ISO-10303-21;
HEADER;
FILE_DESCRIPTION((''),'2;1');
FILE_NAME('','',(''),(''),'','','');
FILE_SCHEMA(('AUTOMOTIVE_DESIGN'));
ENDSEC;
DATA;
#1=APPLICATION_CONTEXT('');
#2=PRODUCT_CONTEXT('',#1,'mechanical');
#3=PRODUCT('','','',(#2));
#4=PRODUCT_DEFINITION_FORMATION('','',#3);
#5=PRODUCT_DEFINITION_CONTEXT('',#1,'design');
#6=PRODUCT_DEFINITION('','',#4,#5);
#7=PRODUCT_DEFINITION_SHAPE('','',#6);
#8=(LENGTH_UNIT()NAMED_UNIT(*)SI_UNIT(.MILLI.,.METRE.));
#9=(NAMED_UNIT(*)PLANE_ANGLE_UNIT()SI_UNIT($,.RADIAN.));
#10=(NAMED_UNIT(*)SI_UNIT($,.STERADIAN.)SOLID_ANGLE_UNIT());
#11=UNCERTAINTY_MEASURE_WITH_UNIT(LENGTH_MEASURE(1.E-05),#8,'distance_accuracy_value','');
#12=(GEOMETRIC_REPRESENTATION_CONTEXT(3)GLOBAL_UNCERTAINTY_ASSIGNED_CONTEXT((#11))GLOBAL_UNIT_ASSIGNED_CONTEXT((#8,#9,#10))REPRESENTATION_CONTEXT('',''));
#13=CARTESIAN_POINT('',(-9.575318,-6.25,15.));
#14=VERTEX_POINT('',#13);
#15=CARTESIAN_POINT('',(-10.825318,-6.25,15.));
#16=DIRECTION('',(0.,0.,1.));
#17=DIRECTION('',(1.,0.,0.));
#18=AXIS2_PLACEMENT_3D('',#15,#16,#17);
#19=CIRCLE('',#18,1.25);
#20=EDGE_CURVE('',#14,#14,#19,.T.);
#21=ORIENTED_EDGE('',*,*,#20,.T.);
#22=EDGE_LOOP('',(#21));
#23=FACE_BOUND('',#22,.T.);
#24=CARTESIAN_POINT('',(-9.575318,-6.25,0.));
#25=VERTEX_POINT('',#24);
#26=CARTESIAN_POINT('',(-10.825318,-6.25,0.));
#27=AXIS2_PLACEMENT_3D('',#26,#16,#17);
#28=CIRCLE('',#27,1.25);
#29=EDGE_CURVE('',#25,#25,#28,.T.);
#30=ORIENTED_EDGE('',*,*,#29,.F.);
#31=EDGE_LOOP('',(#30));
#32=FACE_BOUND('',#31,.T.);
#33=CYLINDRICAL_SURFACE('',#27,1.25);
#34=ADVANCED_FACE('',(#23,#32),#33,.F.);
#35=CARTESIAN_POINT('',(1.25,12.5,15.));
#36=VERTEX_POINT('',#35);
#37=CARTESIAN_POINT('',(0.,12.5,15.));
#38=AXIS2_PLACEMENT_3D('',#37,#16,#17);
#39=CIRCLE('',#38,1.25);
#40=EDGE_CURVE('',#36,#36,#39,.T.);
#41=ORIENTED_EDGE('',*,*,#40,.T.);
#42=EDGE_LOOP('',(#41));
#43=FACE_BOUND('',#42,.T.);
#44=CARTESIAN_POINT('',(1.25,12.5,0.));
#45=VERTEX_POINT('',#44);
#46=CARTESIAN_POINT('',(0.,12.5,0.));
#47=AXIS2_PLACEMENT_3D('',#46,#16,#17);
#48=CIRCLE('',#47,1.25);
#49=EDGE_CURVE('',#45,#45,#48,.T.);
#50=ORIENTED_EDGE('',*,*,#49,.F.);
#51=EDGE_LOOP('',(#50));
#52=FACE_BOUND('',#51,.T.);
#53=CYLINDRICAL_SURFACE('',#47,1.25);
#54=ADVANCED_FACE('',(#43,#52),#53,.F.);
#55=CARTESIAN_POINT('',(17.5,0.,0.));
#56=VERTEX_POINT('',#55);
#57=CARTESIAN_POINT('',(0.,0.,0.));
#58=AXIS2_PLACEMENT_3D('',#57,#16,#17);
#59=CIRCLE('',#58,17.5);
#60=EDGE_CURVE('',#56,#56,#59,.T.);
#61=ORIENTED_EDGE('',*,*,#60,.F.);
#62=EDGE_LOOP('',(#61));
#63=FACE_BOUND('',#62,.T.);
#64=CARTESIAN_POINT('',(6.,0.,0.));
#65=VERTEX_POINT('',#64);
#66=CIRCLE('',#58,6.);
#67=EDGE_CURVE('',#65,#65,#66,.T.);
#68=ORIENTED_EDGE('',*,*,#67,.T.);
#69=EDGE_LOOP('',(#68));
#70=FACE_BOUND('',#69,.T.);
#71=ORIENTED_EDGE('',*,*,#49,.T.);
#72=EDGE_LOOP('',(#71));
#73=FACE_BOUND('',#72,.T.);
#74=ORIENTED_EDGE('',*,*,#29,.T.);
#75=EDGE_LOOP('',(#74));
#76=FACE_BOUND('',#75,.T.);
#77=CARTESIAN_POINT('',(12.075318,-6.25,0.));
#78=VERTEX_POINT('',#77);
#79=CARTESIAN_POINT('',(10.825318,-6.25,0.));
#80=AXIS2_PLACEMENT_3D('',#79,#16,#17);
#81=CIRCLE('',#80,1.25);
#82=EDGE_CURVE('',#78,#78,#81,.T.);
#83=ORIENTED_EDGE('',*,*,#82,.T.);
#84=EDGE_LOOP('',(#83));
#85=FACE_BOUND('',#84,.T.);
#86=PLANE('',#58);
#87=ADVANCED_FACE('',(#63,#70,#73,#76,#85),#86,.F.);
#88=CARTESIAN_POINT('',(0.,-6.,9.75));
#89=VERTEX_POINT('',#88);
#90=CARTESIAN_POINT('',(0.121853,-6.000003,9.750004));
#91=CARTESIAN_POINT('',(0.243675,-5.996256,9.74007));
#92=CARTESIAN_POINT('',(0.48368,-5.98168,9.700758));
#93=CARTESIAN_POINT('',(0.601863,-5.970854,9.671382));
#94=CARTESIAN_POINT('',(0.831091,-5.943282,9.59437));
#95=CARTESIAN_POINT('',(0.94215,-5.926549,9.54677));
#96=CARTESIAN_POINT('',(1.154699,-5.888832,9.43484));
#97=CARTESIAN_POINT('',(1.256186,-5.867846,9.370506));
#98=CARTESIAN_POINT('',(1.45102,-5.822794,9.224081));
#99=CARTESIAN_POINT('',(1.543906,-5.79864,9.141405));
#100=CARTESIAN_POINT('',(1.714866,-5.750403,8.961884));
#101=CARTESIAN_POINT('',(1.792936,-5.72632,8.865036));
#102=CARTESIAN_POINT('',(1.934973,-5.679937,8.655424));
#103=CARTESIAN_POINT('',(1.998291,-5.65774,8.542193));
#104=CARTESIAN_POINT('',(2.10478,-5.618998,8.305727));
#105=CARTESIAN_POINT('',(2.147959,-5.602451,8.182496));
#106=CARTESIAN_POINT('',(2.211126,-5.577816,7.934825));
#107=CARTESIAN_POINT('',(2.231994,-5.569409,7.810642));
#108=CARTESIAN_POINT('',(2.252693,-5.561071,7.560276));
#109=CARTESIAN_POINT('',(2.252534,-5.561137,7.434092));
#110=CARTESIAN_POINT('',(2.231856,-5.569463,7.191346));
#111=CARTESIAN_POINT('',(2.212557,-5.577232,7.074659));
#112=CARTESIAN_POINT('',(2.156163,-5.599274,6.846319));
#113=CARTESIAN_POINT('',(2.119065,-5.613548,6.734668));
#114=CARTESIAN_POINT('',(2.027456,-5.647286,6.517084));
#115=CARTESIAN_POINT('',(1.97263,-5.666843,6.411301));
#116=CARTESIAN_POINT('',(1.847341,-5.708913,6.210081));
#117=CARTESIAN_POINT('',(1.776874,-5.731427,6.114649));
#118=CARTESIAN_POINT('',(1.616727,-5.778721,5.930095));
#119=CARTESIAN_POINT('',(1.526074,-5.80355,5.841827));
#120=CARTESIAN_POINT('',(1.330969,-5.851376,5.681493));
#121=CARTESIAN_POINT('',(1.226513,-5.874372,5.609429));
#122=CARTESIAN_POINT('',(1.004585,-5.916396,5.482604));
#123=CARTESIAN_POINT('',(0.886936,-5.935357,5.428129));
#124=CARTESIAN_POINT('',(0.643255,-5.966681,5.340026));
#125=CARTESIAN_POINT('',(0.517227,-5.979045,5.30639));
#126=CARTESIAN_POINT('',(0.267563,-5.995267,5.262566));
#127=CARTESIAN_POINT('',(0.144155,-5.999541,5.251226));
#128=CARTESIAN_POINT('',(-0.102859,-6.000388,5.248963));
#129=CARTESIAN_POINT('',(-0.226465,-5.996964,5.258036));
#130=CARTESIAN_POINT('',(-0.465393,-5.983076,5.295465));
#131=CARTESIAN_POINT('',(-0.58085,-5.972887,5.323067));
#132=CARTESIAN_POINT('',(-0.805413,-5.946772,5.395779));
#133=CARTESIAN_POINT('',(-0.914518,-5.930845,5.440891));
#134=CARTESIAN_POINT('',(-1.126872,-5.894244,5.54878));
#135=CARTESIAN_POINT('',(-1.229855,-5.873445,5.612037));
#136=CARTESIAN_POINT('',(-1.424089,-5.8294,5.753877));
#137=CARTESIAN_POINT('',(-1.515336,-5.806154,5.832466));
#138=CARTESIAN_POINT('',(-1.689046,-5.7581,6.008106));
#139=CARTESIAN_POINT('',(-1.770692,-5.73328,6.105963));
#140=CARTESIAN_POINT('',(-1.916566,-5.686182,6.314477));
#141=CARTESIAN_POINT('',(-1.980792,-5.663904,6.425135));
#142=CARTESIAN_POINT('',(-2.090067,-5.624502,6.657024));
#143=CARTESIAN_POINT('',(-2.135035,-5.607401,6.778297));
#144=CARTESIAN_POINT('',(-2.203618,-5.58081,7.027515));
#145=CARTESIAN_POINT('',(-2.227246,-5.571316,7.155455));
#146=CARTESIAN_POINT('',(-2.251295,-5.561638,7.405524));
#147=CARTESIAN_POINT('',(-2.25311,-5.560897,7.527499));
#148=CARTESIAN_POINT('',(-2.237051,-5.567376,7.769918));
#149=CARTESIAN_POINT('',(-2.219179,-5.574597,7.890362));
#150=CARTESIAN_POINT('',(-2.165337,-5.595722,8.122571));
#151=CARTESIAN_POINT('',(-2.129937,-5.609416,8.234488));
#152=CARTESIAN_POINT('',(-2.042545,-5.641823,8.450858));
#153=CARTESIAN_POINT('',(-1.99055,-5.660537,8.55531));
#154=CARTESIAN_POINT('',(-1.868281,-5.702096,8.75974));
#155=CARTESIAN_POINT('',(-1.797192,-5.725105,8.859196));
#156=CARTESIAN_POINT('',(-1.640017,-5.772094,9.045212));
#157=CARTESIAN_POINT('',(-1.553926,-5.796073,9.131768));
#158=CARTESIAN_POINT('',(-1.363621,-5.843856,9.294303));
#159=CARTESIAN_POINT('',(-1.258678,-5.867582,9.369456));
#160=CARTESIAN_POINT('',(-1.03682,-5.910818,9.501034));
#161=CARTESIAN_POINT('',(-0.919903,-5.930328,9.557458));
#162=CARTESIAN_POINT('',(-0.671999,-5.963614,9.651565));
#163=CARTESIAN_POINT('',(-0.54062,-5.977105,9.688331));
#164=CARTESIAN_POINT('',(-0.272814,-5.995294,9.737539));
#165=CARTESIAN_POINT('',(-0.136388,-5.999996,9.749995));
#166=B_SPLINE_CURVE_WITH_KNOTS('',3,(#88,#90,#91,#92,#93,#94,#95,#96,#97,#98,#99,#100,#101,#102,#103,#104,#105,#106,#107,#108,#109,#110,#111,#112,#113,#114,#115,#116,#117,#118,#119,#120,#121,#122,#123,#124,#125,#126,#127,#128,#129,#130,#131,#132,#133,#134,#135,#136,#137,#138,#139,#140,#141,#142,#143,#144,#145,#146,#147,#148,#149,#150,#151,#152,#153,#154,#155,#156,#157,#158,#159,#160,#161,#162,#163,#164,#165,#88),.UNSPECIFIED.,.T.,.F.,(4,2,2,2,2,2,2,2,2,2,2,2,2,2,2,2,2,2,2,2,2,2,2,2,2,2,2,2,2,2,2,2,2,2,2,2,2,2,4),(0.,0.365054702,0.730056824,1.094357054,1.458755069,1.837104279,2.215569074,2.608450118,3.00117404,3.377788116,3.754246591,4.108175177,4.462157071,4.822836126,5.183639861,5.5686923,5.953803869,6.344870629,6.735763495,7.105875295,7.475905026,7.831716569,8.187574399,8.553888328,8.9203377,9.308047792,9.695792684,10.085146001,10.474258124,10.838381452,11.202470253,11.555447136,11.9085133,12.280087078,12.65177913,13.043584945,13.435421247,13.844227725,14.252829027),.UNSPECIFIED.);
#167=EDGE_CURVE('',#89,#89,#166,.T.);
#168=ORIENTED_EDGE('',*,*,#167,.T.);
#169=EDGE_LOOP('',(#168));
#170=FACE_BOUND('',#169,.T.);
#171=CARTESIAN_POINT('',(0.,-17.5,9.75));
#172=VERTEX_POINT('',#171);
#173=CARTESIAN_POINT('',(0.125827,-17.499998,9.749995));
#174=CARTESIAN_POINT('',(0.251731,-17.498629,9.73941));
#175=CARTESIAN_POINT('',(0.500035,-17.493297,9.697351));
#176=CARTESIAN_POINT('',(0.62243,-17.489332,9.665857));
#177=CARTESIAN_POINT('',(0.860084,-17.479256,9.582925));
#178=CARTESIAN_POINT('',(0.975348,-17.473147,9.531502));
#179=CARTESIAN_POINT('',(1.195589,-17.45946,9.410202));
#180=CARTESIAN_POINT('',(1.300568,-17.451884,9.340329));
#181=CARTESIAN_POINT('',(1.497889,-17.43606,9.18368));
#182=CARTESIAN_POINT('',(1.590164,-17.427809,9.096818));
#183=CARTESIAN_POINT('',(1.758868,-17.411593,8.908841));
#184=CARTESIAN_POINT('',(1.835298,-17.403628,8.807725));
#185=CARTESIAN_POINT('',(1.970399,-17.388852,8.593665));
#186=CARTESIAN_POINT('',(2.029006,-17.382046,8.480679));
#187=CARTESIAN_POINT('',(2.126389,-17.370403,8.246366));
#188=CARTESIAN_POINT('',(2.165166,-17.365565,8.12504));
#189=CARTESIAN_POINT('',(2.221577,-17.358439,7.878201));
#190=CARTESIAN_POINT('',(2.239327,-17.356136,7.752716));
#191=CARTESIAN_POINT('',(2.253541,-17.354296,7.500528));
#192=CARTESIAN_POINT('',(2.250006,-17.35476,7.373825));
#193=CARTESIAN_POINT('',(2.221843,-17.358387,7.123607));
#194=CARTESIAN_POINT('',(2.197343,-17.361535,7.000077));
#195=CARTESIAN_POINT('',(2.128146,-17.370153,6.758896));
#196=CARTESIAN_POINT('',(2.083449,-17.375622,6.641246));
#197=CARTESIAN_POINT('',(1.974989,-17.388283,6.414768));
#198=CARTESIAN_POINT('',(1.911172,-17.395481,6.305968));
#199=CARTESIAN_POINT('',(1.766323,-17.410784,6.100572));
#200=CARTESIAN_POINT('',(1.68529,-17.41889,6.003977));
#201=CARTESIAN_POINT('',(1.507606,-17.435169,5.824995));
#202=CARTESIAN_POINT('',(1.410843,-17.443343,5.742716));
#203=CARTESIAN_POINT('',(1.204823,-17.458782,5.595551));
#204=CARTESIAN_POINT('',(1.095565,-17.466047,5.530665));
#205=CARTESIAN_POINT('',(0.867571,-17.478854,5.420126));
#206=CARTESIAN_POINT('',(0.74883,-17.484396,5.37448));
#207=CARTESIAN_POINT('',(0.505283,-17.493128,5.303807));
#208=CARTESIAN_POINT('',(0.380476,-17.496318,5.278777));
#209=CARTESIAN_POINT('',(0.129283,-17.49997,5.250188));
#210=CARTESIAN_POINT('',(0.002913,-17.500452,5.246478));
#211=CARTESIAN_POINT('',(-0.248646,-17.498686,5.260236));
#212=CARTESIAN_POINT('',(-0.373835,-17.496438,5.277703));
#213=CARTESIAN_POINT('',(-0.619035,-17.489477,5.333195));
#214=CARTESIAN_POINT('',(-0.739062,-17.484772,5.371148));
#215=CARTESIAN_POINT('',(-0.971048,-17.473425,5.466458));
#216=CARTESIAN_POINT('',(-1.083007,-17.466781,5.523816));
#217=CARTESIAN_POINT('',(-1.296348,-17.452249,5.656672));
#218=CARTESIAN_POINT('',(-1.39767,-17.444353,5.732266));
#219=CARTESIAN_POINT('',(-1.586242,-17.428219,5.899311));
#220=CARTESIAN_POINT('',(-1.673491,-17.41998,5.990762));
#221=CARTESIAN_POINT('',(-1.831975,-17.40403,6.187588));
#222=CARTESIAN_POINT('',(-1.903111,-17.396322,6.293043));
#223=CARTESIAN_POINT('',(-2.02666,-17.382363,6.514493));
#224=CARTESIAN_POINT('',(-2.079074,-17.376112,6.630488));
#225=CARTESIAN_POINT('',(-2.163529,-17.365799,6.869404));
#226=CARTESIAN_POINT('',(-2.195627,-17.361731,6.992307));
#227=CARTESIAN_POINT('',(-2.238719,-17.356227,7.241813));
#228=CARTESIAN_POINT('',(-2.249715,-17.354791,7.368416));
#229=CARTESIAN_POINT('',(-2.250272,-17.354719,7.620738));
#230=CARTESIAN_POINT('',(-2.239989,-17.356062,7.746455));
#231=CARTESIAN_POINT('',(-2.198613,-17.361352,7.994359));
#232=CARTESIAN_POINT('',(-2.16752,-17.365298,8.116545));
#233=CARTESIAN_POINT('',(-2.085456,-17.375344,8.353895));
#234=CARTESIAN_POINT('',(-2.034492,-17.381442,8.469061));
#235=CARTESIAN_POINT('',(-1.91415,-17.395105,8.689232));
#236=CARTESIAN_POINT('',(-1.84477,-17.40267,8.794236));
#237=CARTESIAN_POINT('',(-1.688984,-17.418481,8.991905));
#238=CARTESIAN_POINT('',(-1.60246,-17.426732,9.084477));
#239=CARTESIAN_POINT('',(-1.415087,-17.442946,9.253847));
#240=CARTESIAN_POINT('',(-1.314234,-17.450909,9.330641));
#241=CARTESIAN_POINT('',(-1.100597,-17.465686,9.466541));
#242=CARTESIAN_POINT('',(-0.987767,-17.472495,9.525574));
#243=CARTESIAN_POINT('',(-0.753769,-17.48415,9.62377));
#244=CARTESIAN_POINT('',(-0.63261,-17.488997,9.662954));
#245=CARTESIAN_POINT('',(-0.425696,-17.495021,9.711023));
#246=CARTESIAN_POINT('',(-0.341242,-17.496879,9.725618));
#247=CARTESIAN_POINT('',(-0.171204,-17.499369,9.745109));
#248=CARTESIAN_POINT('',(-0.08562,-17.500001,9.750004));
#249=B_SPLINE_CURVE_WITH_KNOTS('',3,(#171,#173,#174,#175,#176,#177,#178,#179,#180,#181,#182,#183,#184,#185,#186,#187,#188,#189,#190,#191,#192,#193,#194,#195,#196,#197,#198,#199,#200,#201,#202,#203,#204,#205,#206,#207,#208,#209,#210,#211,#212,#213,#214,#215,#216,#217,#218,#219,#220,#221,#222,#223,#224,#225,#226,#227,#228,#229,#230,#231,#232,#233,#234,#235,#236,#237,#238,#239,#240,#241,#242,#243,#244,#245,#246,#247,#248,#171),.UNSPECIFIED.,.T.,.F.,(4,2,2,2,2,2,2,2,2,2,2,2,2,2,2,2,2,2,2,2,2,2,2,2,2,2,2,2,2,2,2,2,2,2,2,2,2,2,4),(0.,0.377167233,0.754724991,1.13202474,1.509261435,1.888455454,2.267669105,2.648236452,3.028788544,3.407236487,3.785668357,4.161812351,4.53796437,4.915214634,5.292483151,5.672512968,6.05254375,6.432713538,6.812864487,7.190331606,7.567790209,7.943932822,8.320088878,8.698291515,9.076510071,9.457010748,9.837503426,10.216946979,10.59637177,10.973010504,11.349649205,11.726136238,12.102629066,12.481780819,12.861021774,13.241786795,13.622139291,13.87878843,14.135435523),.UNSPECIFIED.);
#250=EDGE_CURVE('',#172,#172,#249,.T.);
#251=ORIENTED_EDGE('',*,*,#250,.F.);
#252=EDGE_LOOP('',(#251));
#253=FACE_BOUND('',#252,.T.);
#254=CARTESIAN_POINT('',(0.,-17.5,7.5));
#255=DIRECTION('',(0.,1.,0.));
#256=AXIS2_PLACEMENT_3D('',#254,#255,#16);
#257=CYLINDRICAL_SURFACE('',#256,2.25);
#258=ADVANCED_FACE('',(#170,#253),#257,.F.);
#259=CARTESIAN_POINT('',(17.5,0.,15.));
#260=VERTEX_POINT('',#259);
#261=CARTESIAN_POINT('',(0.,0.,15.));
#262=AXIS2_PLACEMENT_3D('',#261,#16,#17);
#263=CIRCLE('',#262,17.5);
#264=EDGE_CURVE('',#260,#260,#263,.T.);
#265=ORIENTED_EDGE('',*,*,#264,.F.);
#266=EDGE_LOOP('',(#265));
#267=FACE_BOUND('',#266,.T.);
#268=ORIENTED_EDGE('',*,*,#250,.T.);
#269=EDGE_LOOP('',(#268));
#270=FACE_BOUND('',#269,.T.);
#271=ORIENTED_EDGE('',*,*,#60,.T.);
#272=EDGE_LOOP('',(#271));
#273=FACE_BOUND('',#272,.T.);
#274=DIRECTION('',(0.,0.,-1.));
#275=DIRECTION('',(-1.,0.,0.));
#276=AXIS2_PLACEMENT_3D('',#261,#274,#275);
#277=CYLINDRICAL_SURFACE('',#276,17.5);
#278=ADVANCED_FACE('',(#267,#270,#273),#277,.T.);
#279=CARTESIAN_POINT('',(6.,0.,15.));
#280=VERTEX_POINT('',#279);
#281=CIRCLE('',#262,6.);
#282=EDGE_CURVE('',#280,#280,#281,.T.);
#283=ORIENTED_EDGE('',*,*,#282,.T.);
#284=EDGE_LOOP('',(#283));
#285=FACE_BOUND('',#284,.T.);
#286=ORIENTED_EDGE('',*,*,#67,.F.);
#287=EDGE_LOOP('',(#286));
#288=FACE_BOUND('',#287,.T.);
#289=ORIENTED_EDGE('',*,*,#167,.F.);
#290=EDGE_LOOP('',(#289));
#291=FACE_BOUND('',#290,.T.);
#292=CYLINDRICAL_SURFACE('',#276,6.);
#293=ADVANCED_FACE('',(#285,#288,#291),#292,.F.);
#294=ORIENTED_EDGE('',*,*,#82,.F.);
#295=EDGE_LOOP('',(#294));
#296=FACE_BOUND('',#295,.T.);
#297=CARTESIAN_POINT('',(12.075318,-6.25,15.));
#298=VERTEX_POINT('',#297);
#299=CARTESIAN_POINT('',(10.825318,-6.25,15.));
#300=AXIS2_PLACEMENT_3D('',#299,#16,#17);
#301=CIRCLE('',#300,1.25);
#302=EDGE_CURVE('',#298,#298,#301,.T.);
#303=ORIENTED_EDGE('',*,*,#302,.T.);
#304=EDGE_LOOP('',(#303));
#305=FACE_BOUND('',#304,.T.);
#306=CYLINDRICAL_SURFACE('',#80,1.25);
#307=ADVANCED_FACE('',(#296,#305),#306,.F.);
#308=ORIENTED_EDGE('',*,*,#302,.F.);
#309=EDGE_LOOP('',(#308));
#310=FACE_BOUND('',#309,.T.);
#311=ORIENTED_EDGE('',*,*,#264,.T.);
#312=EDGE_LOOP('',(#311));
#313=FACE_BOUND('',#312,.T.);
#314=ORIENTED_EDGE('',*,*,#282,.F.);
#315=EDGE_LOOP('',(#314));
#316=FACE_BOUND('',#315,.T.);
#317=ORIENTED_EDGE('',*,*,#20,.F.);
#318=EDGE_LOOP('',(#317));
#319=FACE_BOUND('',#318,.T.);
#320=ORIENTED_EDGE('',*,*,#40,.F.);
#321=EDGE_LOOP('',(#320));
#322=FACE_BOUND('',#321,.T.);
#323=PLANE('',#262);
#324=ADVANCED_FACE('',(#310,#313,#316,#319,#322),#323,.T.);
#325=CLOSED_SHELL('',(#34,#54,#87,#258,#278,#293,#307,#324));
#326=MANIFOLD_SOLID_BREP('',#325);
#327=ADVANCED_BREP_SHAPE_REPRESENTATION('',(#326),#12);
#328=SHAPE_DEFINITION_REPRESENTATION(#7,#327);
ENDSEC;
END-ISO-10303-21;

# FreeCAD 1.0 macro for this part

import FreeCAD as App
import Part
import Sketcher

V = App.Vector
Q = App.Units.Quantity

doc = App.newDocument("Part")
body = doc.addObject("PartDesign::Body", "Body")

sketch1 = doc.addObject("Sketcher::SketchObject", "Sketch")
body.addObject(sketch1)
sketch1.AttachmentSupport = (doc.XY_Plane, [""])
sketch1.MapMode = "FlatFace"
sketch1.addGeometry(Part.Circle(V(0, 0, 0), V(0, 0, 1), 18), False)
sketch1.addGeometry(Part.Circle(V(0, 0, 0), V(0, 0, 1), 6), False)
sketch1.addConstraint(Sketcher.Constraint("Coincident", 0, 3, -1, 1))
sketch1.addConstraint(Sketcher.Constraint("Coincident", 1, 3, -1, 1))
sketch1.addConstraint(Sketcher.Constraint("Diameter", 0, Q("35 mm")))
sketch1.addConstraint(Sketcher.Constraint("Diameter", 1, Q("12 mm")))
pad1 = doc.addObject("PartDesign::Pad", "Pad")
body.addObject(pad1)
pad1.Profile = sketch1
pad1.Length = 15

sketch2 = doc.addObject("Sketcher::SketchObject", "Sketch001")
body.addObject(sketch2)
sketch2.AttachmentSupport = (doc.XZ_Plane, [""])
sketch2.MapMode = "FlatFace"
sketch2.addGeometry(Part.Circle(V(0, 7.5, 0), V(0, 0, 1), 2.2), False)
sketch2.addConstraint(Sketcher.Constraint("PointOnObject", 0, 3, -2))
sketch2.addConstraint(Sketcher.Constraint("Diameter", 0, Q("4.5 mm")))
sketch2.addConstraint(Sketcher.Constraint("DistanceY", -1, 1, 0, 3, Q("7.5 mm")))
pocket1 = doc.addObject("PartDesign::Pocket", "Pocket")
body.addObject(pocket1)
pocket1.Profile = sketch2
pocket1.Type = "ThroughAll"
pocket1.Reversed = True

sketch3 = doc.addObject("Sketcher::SketchObject", "Sketch002")
body.addObject(sketch3)
sketch3.AttachmentSupport = (doc.XY_Plane, [""])
sketch3.MapMode = "FlatFace"
sketch3.AttachmentOffset = App.Placement(V(0, 0, 15), App.Rotation())
sketch3.addGeometry(Part.Circle(V(0, 12.5, 0), V(0, 0, 1), 1.2), False)
sketch3.addGeometry(Part.Circle(V(10.8, -6.2, 0), V(0, 0, 1), 1.2), False)
sketch3.addGeometry(Part.Circle(V(-10.8, -6.2, 0), V(0, 0, 1), 1.2), False)
sketch3.addConstraint(Sketcher.Constraint("Equal", 0, 1))
sketch3.addConstraint(Sketcher.Constraint("Equal", 1, 2))
sketch3.addConstraint(Sketcher.Constraint("Symmetric", 1, 3, 2, 3, -2))
sketch3.addConstraint(Sketcher.Constraint("PointOnObject", 0, 3, -2))
sketch3.addConstraint(Sketcher.Constraint("Diameter", 0, Q("2.5 mm")))
sketch3.addConstraint(Sketcher.Constraint("DistanceY", -1, 1, 0, 3, Q("12.5 mm")))
sketch3.addConstraint(Sketcher.Constraint("DistanceY", 1, 3, -1, 1, Q("6.25 mm")))
sketch3.addConstraint(Sketcher.Constraint("DistanceX", -1, 1, 1, 3, Q("10.825318 mm")))
pocket2 = doc.addObject("PartDesign::Pocket", "Pocket001")
body.addObject(pocket2)
pocket2.Profile = sketch3
pocket2.Type = "ThroughAll"

doc.recompute()
